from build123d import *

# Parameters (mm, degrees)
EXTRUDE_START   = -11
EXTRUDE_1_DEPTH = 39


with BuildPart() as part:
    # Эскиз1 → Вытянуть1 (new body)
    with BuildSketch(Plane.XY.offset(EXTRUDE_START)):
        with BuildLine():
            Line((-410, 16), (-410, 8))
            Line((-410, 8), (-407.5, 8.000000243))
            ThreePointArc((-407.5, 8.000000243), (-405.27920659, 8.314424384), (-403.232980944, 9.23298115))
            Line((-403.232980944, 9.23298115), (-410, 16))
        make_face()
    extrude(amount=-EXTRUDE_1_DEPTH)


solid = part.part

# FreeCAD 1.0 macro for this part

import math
import FreeCAD as App
import Part
import Sketcher

V = App.Vector
Q = App.Units.Quantity

doc = App.newDocument("Part")
body = doc.addObject("PartDesign::Body", "Body")

sketch1 = body.newObject("Sketcher::SketchObject", "Sketch")
sketch1.AttachmentSupport = (doc.getObject("XY_Plane"), [""])
sketch1.MapMode = "FlatFace"
sketch1.AttachmentOffset = App.Placement(V(0, 0, -11), App.Rotation())
sketch1.addGeometry(Part.LineSegment(V(-410, 16, 0), V(-410, 8, 0)), False)
sketch1.addGeometry(Part.LineSegment(V(-410, 8, 0), V(-407.5, 8, 0)), False)
sketch1.addGeometry(Part.ArcOfCircle(Part.Circle(V(-407.5, 16, 0), V(0, 0, 1), 8), math.radians(-90), math.radians(-58)), False)
sketch1.addGeometry(Part.LineSegment(V(-403.2, 9.2, 0), V(-410, 16, 0)), False)
sketch1.addConstraint(Sketcher.Constraint("Coincident", 0, 2, 1, 1))
sketch1.addConstraint(Sketcher.Constraint("Tangent", 1, 2, 2, 1))
sketch1.addConstraint(Sketcher.Constraint("Coincident", 2, 2, 3, 1))
sketch1.addConstraint(Sketcher.Constraint("Coincident", 3, 2, 0, 1))
sketch1.addConstraint(Sketcher.Constraint("Vertical", 0))
sketch1.addConstraint(Sketcher.Constraint("Horizontal", 1))
sketch1.addConstraint(Sketcher.Constraint("Horizontal", 2, 3, 3, 2))
sketch1.addConstraint(Sketcher.Constraint("Radius", 2, Q("8 mm")))
sketch1.addConstraint(Sketcher.Constraint("Angle", 3, Q("135.000001 deg")))
sketch1.addConstraint(Sketcher.Constraint("DistanceX", 1, 1, 1, 2, Q("2.5 mm")))
sketch1.addConstraint(Sketcher.Constraint("DistanceY", -1, 1, 2, 3, Q("16 mm")))
sketch1.addConstraint(Sketcher.Constraint("DistanceX", 0, 2, -1, 1, Q("410 mm")))
pad1 = body.newObject("PartDesign::Pad", "Pad")
pad1.Profile = sketch1
pad1.Length = 39
pad1.Reversed = True

doc.recompute()
